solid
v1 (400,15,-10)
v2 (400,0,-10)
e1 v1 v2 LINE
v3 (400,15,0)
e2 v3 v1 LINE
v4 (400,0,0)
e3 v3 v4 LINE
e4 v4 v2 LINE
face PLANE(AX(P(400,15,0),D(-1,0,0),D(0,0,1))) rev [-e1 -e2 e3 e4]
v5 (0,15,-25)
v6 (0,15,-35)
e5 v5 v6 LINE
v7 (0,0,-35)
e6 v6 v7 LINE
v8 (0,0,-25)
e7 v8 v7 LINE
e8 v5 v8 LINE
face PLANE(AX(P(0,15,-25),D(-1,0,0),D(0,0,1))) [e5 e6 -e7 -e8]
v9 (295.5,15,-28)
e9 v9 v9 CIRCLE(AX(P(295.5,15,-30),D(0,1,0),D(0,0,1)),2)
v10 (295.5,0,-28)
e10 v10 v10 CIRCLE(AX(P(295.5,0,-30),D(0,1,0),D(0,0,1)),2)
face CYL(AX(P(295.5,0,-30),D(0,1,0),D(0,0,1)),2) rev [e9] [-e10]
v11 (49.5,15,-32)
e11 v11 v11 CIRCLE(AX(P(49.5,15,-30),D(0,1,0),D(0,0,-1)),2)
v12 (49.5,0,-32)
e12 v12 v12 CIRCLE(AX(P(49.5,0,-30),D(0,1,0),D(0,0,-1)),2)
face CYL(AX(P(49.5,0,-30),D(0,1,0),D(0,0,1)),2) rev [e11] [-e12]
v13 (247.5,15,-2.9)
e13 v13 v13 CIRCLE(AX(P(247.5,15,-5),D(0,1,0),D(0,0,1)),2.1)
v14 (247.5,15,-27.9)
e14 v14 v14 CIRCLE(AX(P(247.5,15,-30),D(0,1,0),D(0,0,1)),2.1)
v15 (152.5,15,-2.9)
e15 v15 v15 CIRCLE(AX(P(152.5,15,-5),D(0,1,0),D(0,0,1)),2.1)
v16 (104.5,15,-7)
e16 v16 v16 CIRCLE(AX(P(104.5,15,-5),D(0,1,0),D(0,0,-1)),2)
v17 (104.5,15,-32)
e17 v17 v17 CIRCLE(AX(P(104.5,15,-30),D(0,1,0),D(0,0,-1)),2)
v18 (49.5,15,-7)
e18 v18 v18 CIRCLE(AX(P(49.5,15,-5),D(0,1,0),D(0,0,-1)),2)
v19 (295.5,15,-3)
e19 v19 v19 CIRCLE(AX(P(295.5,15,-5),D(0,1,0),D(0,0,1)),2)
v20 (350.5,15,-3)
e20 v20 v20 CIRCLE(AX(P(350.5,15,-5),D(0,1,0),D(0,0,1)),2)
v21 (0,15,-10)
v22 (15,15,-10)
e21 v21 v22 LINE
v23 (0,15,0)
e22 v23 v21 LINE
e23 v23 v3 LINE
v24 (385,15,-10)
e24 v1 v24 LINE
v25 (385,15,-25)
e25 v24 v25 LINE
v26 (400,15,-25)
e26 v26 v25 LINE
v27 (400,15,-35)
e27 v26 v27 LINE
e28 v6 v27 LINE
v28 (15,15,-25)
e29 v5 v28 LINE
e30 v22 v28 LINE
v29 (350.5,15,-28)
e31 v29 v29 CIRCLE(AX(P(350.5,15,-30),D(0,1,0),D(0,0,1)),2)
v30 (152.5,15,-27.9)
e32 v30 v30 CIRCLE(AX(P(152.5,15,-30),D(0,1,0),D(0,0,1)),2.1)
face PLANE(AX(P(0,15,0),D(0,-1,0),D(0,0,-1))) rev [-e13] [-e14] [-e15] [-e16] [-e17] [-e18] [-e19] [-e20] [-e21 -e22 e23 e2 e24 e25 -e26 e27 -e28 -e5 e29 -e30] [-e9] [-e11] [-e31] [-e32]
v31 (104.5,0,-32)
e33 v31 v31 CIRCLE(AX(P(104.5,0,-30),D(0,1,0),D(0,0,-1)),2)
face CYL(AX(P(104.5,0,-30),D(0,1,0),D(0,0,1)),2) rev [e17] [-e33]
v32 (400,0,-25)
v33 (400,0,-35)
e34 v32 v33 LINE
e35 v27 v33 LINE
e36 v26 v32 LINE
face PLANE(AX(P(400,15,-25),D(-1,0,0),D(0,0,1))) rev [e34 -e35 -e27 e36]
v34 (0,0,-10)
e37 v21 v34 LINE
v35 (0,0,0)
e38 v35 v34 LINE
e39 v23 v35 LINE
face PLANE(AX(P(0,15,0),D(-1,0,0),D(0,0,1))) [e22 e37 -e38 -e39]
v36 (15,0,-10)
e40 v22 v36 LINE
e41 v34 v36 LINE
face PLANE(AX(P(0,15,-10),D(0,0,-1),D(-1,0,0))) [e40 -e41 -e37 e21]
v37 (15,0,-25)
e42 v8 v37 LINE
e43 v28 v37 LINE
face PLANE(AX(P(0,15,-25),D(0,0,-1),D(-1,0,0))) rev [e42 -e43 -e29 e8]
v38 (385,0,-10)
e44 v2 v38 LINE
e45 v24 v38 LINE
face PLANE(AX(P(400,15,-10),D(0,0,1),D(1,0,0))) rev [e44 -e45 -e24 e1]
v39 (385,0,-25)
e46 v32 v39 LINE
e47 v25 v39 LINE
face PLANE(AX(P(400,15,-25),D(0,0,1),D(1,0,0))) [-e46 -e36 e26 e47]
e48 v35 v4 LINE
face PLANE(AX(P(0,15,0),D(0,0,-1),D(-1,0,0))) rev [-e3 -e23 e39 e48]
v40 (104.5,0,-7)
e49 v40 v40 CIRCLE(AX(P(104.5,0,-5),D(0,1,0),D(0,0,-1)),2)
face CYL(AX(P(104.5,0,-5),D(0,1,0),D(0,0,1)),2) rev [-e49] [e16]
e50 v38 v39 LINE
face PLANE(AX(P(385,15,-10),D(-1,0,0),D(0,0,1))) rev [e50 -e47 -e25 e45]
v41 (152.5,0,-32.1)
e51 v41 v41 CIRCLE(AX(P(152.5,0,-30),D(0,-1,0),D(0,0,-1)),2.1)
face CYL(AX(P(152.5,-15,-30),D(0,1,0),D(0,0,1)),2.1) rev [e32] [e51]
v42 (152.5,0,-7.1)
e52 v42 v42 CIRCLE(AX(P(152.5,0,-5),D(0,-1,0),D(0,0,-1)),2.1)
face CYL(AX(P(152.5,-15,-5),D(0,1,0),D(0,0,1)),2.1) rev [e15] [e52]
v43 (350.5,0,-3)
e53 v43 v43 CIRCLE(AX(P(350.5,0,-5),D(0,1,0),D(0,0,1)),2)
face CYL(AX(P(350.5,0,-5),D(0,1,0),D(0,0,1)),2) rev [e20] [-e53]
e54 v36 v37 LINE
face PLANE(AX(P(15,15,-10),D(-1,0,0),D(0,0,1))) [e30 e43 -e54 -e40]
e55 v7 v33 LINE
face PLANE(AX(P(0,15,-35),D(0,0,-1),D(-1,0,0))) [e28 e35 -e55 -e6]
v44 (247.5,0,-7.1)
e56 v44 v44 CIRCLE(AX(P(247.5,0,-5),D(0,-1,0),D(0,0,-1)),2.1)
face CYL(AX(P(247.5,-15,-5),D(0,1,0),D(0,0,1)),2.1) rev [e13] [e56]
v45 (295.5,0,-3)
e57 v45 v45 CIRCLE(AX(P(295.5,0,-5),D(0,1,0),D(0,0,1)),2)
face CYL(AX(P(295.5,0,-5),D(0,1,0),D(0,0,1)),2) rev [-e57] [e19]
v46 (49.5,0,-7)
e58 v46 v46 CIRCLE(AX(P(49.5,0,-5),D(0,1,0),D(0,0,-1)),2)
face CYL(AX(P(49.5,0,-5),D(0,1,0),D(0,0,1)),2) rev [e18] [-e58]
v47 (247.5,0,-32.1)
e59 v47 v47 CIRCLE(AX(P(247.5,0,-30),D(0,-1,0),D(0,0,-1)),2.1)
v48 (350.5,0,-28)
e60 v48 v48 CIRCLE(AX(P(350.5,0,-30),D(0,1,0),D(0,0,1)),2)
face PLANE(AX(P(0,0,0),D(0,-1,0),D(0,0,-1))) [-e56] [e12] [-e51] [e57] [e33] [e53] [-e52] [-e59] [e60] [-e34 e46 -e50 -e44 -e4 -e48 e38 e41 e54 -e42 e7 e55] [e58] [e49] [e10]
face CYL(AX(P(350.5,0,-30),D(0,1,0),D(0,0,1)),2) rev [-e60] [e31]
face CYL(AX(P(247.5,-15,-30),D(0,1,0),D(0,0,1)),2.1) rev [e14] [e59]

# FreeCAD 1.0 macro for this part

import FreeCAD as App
import Part
import Sketcher

V = App.Vector


def add_polygon(sketch, points):
    """Adds a closed chain of lines whose ends are joined by coincident constraints."""
    first, n = sketch.GeometryCount, len(points)
    for a, b in zip(points, points[1:] + points[:1]):
        sketch.addGeometry(Part.LineSegment(App.Vector(*a, 0), App.Vector(*b, 0)), False)
    for i in range(n):
        sketch.addConstraint(Sketcher.Constraint("Coincident", first + i, 2, first + (i + 1) % n, 1))

doc = App.newDocument("Part")
body = doc.addObject("PartDesign::Body", "Body")

sketch1 = body.newObject("Sketcher::SketchObject", "Sketch")
sketch1.AttachmentSupport = (doc.getObject("XZ_Plane"), [""])
sketch1.MapMode = "FlatFace"
add_polygon(sketch1, [(0, 0), (400, 0), (400, -10), (385, -10), (385, -25), (400, -25), (400, -35), (0, -35), (0, -25), (15, -25), (15, -10), (0, -10)])
sketch1.addConstraint([
    Sketcher.Constraint("Horizontal", 0),
    Sketcher.Constraint("Vertical", 1),
    Sketcher.Constraint("Horizontal", 2),
    Sketcher.Constraint("Vertical", 3),
    Sketcher.Constraint("Horizontal", 4),
    Sketcher.Constraint("Vertical", 5),
    Sketcher.Constraint("Horizontal", 6),
    Sketcher.Constraint("Vertical", 7),
    Sketcher.Constraint("Horizontal", 8),
    Sketcher.Constraint("Vertical", 9),
    Sketcher.Constraint("Horizontal", 10),
    Sketcher.Constraint("Vertical", 11),
    Sketcher.Constraint("Coincident", 11, 2, -1, 1),
    Sketcher.Constraint("PointOnObject", 6, 2, -2),
    Sketcher.Constraint("Horizontal", 4, 2, 7, 2),
    Sketcher.Constraint("Horizontal", 2, 2, 9, 2),
    Sketcher.Constraint("Vertical", 1, 2, 4, 2),
    Sketcher.Constraint("Equal", 4, 8),
    Sketcher.Constraint("Equal", 10, 3),
    Sketcher.Constraint("Equal", 1, 5),
    Sketcher.Constraint("DistanceX", 0, 1, 0, 2, 400.0),
    Sketcher.Constraint("DistanceX", 2, 2, 2, 1, 15.0),
    Sketcher.Constraint("DistanceY", 1, 2, 1, 1, 10.0),
])
pad1 = body.newObject("PartDesign::Pad", "Pad")
pad1.Profile = sketch1
pad1.Length = 15
pad1.Reversed = True

sketch2 = body.newObject("Sketcher::SketchObject", "Sketch001")
sketch2.AttachmentSupport = (doc.getObject("XZ_Plane"), [""])
sketch2.MapMode = "FlatFace"
sketch2.AttachmentOffset = App.Placement(V(0, 0, -15), App.Rotation())
sketch2.addGeometry([
    Part.Circle(V(152.5, -5, 0), V(0, 0, 1), 2.1),
    Part.Circle(V(152.5, -30, 0), V(0, 0, 1), 2.1),
    Part.Circle(V(247.5, -5, 0), V(0, 0, 1), 2.1),
    Part.Circle(V(247.5, -30, 0), V(0, 0, 1), 2.1),
], False)
sketch2.addConstraint([
    Sketcher.Constraint("Equal", 0, 1),
    Sketcher.Constraint("Equal", 1, 2),
    Sketcher.Constraint("Equal", 2, 3),
    Sketcher.Constraint("Horizontal", 0, 3, 2, 3),
    Sketcher.Constraint("Horizontal", 1, 3, 3, 3),
    Sketcher.Constraint("Vertical", 0, 3, 1, 3),
    Sketcher.Constraint("Vertical", 2, 3, 3, 3),
    Sketcher.Constraint("Diameter", 0, 4.2),
    Sketcher.Constraint("DistanceY", 0, 3, -1, 1, 5.0),
    Sketcher.Constraint("DistanceY", 1, 3, -1, 1, 30.0),
    Sketcher.Constraint("DistanceX", 0, 3, 2, 3, 95.0),
    Sketcher.Constraint("DistanceX", -1, 1, 0, 3, 152.5),
])
pocket1 = body.newObject("PartDesign::Pocket", "Pocket")
pocket1.Profile = sketch2
pocket1.Length = 30
pocket1.Reversed = True

sketch3 = body.newObject("Sketcher::SketchObject", "Sketch002")
sketch3.AttachmentSupport = (doc.getObject("XZ_Plane"), [""])
sketch3.MapMode = "FlatFace"
sketch3.AttachmentOffset = App.Placement(V(0, 0, -15), App.Rotation())
sketch3.addGeometry([
    Part.Circle(V(350.5, -5, 0), V(0, 0, 1), 2),
    Part.Circle(V(295.5, -5, 0), V(0, 0, 1), 2),
    Part.Circle(V(350.5, -30, 0), V(0, 0, 1), 2),
    Part.Circle(V(295.5, -30, 0), V(0, 0, 1), 2),
    Part.Circle(V(49.5, -30, 0), V(0, 0, 1), 2),
    Part.Circle(V(104.5, -30, 0), V(0, 0, 1), 2),
    Part.Circle(V(104.5, -5, 0), V(0, 0, 1), 2),
    Part.Circle(V(49.5, -5, 0), V(0, 0, 1), 2),
], False)
sketch3.addConstraint([
    Sketcher.Constraint("Equal", 0, 1),
    Sketcher.Constraint("Equal", 1, 2),
    Sketcher.Constraint("Equal", 2, 3),
    Sketcher.Constraint("Equal", 3, 4),
    Sketcher.Constraint("Equal", 4, 5),
    Sketcher.Constraint("Equal", 5, 6),
    Sketcher.Constraint("Equal", 6, 7),
    Sketcher.Constraint("Horizontal", 0, 3, 1, 3),
    Sketcher.Constraint("Horizontal", 2, 3, 3, 3),
    Sketcher.Constraint("Horizontal", 3, 3, 4, 3),
    Sketcher.Constraint("Horizontal", 4, 3, 5, 3),
    Sketcher.Constraint("Horizontal", 1, 3, 6, 3),
    Sketcher.Constraint("Horizontal", 6, 3, 7, 3),
    Sketcher.Constraint("Vertical", 0, 3, 2, 3),
    Sketcher.Constraint("Vertical", 1, 3, 3, 3),
    Sketcher.Constraint("Vertical", 5, 3, 6, 3),
    Sketcher.Constraint("Vertical", 4, 3, 7, 3),
    Sketcher.Constraint("Diameter", 0, 4.0),
    Sketcher.Constraint("DistanceY", 0, 3, -1, 1, 5.0),
    Sketcher.Constraint("DistanceY", 2, 3, -1, 1, 30.0),
    Sketcher.Constraint("DistanceX", 1, 3, 0, 3, 55.0),
    Sketcher.Constraint("DistanceX", 4, 3, 3, 3, 246.0),
    Sketcher.Constraint("DistanceX", 4, 3, 5, 3, 55.0),
    Sketcher.Constraint("DistanceX", -1, 1, 0, 3, 350.5),
])
pocket2 = body.newObject("PartDesign::Pocket", "Pocket001")
pocket2.Profile = sketch3
pocket2.Length = 15
pocket2.Reversed = True

doc.recompute()
